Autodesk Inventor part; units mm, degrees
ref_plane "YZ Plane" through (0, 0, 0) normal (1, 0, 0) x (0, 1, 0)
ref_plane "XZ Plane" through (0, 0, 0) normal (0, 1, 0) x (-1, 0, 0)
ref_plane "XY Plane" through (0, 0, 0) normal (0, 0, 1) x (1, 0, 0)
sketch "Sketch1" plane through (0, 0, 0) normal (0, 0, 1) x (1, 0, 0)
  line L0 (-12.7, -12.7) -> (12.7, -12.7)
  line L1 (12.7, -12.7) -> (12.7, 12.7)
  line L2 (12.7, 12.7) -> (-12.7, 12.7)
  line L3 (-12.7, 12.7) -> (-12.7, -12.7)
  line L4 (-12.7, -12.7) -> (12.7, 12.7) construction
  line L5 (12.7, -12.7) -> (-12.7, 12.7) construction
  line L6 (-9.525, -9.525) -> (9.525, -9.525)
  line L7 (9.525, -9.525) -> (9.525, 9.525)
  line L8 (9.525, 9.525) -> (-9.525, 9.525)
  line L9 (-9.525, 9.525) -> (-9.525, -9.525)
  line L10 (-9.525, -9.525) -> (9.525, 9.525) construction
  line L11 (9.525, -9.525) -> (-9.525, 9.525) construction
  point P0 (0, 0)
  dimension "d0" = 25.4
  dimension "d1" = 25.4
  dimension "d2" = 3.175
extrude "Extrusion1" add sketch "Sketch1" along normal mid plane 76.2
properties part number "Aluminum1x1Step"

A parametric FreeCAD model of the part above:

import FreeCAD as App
import Part
import Sketcher

V = App.Vector
Q = App.Units.Quantity


def add_polygon(sketch, points):
    """Adds a closed chain of lines whose ends are joined by coincident constraints."""
    first, n = sketch.GeometryCount, len(points)
    for a, b in zip(points, points[1:] + points[:1]):
        sketch.addGeometry(Part.LineSegment(App.Vector(*a, 0), App.Vector(*b, 0)), False)
    for i in range(n):
        sketch.addConstraint(Sketcher.Constraint("Coincident", first + i, 2, first + (i + 1) % n, 1))

doc = App.newDocument("Part")
body = doc.addObject("PartDesign::Body", "Body")

# Sketch on XY plane
sketch1 = body.newObject("Sketcher::SketchObject", "Sketch")
sketch1.AttachmentSupport = (doc.getObject("XY_Plane"), [""])
sketch1.MapMode = "FlatFace"
add_polygon(sketch1, [(-13, 13), (-13, -13), (13, -13), (13, 13)])  # lines 0-3
add_polygon(sketch1, [(10, -10), (-10, -10), (-10, 10), (10, 10)])  # lines 4-7
sketch1.addConstraint(Sketcher.Constraint("Vertical", 0))
sketch1.addConstraint(Sketcher.Constraint("Horizontal", 1))
sketch1.addConstraint(Sketcher.Constraint("Vertical", 2))
sketch1.addConstraint(Sketcher.Constraint("Horizontal", 3))
sketch1.addConstraint(Sketcher.Constraint("Horizontal", 4))
sketch1.addConstraint(Sketcher.Constraint("Vertical", 5))
sketch1.addConstraint(Sketcher.Constraint("Horizontal", 6))
sketch1.addConstraint(Sketcher.Constraint("Vertical", 7))
sketch1.addConstraint(Sketcher.Constraint("Symmetric", 0, 2, 2, 2, -1, 1))
sketch1.addConstraint(Sketcher.Constraint("Symmetric", 4, 2, 6, 2, -1, 1))
sketch1.addConstraint(Sketcher.Constraint("Equal", 3, 0))
sketch1.addConstraint(Sketcher.Constraint("Equal", 6, 5))
sketch1.addConstraint(Sketcher.Constraint("DistanceX", 1, 1, 1, 2, Q("1 in")))
sketch1.addConstraint(Sketcher.Constraint("DistanceX", 0, 2, 4, 2, Q("0.125 in")))
pad1 = body.newObject("PartDesign::Pad", "Pad")
pad1.Profile = sketch1
pad1.Length = Q("3 in")
pad1.Midplane = True

doc.recompute()
